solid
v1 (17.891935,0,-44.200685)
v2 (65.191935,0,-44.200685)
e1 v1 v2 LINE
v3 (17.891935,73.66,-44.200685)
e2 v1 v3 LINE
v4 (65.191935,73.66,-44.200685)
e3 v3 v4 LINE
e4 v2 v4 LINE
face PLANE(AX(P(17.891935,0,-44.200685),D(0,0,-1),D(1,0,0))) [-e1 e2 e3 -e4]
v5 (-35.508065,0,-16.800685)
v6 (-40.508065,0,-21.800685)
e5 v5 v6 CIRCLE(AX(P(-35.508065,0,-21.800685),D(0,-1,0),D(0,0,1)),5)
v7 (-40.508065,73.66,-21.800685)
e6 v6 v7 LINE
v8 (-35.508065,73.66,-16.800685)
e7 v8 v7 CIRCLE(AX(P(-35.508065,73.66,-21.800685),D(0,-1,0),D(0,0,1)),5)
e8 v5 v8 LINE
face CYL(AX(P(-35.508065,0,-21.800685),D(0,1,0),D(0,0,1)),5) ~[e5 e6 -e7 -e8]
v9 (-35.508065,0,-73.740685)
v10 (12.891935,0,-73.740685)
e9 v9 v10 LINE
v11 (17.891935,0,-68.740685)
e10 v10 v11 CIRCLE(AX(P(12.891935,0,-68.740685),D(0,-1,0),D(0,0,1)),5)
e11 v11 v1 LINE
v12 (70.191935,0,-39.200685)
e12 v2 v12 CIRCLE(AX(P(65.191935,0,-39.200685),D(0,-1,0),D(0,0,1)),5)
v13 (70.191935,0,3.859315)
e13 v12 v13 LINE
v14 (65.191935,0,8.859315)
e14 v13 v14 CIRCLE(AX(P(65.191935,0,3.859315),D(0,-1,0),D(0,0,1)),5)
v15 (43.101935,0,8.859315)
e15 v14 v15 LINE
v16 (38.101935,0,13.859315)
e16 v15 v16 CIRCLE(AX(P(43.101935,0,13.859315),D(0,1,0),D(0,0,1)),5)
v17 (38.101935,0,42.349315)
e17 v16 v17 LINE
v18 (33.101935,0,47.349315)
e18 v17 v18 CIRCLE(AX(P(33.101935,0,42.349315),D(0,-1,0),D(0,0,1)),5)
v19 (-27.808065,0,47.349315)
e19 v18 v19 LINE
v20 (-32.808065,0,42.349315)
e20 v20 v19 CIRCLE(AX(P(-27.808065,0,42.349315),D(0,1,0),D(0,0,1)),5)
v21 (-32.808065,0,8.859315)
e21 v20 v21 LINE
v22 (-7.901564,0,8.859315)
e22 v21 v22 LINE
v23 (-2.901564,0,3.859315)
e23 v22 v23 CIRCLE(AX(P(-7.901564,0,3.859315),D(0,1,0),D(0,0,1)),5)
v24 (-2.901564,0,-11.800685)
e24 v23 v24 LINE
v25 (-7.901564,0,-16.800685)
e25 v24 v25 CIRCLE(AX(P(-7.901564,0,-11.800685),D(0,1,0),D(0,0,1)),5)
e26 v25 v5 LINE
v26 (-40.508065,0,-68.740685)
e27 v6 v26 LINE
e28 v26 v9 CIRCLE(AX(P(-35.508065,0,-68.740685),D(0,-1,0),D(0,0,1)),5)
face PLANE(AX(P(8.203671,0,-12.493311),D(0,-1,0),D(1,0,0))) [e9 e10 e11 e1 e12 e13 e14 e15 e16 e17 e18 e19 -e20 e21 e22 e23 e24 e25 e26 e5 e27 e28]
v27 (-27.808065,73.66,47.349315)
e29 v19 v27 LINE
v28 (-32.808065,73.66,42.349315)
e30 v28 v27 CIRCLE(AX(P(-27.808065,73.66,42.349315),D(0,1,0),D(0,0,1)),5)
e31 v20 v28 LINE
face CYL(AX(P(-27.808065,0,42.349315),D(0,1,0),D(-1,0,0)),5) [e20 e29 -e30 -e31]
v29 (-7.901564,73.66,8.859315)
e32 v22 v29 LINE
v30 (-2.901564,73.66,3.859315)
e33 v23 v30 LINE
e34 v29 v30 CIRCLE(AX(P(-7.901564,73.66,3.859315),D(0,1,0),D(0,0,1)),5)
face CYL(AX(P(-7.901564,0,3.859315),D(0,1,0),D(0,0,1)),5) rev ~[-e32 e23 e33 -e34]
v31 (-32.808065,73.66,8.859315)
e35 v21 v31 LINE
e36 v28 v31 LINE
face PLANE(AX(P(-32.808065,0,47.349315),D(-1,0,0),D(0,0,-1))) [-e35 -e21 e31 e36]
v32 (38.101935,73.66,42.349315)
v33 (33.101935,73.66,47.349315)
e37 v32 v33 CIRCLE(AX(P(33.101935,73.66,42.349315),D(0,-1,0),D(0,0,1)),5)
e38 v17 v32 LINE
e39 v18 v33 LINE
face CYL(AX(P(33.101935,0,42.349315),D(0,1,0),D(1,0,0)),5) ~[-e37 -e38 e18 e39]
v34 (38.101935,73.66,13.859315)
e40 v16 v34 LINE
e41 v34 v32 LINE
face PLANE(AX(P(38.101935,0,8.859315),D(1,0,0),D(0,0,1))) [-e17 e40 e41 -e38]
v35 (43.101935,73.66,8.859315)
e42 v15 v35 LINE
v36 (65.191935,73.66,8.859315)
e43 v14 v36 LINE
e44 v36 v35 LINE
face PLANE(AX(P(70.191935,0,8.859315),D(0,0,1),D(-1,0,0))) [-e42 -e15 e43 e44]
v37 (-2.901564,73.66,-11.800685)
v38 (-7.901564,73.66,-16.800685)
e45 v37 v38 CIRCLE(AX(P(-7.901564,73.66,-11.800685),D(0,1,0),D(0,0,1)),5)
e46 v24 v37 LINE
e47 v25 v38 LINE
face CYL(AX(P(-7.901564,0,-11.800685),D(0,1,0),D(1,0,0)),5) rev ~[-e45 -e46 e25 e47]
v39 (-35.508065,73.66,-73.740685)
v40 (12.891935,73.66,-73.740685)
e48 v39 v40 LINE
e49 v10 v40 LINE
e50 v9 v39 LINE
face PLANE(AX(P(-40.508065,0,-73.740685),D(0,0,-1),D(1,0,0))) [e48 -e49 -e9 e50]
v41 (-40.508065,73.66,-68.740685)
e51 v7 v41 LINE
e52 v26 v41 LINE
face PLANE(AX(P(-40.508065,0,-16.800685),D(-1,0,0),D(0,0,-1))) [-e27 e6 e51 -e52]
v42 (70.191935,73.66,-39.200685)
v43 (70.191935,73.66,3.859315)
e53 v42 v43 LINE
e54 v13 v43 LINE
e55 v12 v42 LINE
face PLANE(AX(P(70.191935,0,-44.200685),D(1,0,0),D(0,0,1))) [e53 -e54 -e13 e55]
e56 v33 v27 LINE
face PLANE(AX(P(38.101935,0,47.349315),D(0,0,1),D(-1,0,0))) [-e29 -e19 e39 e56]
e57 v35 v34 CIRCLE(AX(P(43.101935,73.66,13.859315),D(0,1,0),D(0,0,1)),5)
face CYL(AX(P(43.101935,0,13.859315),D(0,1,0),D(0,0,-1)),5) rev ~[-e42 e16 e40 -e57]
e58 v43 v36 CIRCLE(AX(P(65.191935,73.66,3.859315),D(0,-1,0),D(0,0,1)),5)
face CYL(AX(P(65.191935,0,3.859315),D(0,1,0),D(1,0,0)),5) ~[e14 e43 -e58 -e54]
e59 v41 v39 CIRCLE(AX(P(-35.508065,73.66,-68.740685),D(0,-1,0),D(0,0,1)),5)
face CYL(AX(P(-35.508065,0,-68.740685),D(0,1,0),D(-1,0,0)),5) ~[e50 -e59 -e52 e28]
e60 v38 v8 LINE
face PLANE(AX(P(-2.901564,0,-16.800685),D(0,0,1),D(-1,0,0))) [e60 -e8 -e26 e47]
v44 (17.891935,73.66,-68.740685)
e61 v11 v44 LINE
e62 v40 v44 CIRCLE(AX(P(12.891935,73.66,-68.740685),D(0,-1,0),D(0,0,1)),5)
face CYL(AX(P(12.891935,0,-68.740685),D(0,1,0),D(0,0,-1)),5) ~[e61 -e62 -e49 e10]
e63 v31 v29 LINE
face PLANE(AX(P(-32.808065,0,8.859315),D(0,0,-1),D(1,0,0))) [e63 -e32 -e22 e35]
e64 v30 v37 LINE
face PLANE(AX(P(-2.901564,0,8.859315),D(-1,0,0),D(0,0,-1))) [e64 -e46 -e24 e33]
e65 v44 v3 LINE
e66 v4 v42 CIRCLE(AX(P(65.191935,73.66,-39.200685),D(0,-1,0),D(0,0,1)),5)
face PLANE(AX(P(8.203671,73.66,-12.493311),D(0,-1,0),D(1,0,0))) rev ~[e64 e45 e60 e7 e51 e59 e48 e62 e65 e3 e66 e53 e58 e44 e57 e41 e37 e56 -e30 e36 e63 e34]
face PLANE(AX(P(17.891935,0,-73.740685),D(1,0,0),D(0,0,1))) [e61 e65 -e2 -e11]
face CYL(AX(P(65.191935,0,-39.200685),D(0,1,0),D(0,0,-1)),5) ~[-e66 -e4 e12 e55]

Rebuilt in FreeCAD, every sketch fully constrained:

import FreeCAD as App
import Part
import Sketcher
from FreeCAD import Vector


def edges_at(feature, points):
    """Names of the edges that pass closest to the given points."""
    edges = feature.Shape.Edges
    near = lambda p: min(range(len(edges)), key=lambda i: edges[i].distToShape(Part.Vertex(*p))[0])
    return sorted({f"Edge{near(p) + 1}" for p in points})


def add_polygon(sketch, points):
    """Adds a closed chain of lines whose ends are joined by coincident constraints."""
    first, n = sketch.GeometryCount, len(points)
    for a, b in zip(points, points[1:] + points[:1]):
        sketch.addGeometry(Part.LineSegment(App.Vector(*a, 0), App.Vector(*b, 0)), False)
    for i in range(n):
        sketch.addConstraint(Sketcher.Constraint("Coincident", first + i, 2, first + (i + 1) % n, 1))

doc = App.newDocument("Part")
body = doc.addObject("PartDesign::Body", "Body")

# Sketch on XZ plane
sketch1 = body.newObject("Sketcher::SketchObject", "Sketch")
sketch1.AttachmentSupport = (doc.getObject("XZ_Plane"), [""])
sketch1.MapMode = "FlatFace"
add_polygon(sketch1, [(-33, 47), (-33, 9), (-3, 9), (-3, -17), (-41, -17), (-41, -74), (18, -74), (18, -44), (70, -44), (70, 9), (38, 9), (38, 47)])  # lines 0-11
sketch1.addConstraint([
    Sketcher.Constraint("Vertical", 0),
    Sketcher.Constraint("Horizontal", 1),
    Sketcher.Constraint("Vertical", 2),
    Sketcher.Constraint("Horizontal", 3),
    Sketcher.Constraint("Vertical", 4),
    Sketcher.Constraint("Horizontal", 5),
    Sketcher.Constraint("Vertical", 6),
    Sketcher.Constraint("Horizontal", 7),
    Sketcher.Constraint("Vertical", 8),
    Sketcher.Constraint("Horizontal", 9),
    Sketcher.Constraint("Vertical", 10),
    Sketcher.Constraint("Horizontal", 11),
    Sketcher.Constraint("Horizontal", 1, 2, 8, 2),
    Sketcher.Constraint("DistanceX", 5, 1, 5, 2, 58.4),
    Sketcher.Constraint("DistanceX", 7, 1, 7, 2, 52.3),
    Sketcher.Constraint("DistanceX", 9, 2, 9, 1, 32.09),
    Sketcher.Constraint("DistanceX", 11, 2, 11, 1, 70.91),
    Sketcher.Constraint("DistanceY", 0, 2, 0, 1, 38.49),
    Sketcher.Constraint("DistanceY", 2, 2, 2, 1, 25.66),
    Sketcher.Constraint("DistanceY", 4, 2, 4, 1, 56.94),
    Sketcher.Constraint("DistanceY", 6, 1, 6, 2, 29.54),
    Sketcher.Constraint("DistanceX", 1, 1, 1, 2, 29.906501),
    Sketcher.Constraint("DistanceX", 0, 2, -1, 1, 32.808065),
    Sketcher.Constraint("DistanceY", -1, 1, 0, 2, 8.859315),
])
pad1 = body.newObject("PartDesign::Pad", "Pad")
pad1.Profile = sketch1
pad1.Length = 73.66
pad1.Reversed = True
doc.recompute()

fillet = body.newObject("PartDesign::Fillet", "Fillet")
fillet.Base = (pad1, edges_at(pad1, [
    (38.102, 36.83, 47.349),
    (-32.808, 36.83, 47.349),
    (38.102, 36.83, 8.859),
    (70.192, 36.83, 8.859),
    (70.192, 36.83, -44.201),
    (17.892, 36.83, -73.741),
    (-40.508, 36.83, -73.741),
    (-40.508, 36.83, -16.801),
    (-2.902, 36.83, -16.801),
    (-2.902, 36.83, 8.859),
]))
fillet.Radius = 5

doc.recompute()
